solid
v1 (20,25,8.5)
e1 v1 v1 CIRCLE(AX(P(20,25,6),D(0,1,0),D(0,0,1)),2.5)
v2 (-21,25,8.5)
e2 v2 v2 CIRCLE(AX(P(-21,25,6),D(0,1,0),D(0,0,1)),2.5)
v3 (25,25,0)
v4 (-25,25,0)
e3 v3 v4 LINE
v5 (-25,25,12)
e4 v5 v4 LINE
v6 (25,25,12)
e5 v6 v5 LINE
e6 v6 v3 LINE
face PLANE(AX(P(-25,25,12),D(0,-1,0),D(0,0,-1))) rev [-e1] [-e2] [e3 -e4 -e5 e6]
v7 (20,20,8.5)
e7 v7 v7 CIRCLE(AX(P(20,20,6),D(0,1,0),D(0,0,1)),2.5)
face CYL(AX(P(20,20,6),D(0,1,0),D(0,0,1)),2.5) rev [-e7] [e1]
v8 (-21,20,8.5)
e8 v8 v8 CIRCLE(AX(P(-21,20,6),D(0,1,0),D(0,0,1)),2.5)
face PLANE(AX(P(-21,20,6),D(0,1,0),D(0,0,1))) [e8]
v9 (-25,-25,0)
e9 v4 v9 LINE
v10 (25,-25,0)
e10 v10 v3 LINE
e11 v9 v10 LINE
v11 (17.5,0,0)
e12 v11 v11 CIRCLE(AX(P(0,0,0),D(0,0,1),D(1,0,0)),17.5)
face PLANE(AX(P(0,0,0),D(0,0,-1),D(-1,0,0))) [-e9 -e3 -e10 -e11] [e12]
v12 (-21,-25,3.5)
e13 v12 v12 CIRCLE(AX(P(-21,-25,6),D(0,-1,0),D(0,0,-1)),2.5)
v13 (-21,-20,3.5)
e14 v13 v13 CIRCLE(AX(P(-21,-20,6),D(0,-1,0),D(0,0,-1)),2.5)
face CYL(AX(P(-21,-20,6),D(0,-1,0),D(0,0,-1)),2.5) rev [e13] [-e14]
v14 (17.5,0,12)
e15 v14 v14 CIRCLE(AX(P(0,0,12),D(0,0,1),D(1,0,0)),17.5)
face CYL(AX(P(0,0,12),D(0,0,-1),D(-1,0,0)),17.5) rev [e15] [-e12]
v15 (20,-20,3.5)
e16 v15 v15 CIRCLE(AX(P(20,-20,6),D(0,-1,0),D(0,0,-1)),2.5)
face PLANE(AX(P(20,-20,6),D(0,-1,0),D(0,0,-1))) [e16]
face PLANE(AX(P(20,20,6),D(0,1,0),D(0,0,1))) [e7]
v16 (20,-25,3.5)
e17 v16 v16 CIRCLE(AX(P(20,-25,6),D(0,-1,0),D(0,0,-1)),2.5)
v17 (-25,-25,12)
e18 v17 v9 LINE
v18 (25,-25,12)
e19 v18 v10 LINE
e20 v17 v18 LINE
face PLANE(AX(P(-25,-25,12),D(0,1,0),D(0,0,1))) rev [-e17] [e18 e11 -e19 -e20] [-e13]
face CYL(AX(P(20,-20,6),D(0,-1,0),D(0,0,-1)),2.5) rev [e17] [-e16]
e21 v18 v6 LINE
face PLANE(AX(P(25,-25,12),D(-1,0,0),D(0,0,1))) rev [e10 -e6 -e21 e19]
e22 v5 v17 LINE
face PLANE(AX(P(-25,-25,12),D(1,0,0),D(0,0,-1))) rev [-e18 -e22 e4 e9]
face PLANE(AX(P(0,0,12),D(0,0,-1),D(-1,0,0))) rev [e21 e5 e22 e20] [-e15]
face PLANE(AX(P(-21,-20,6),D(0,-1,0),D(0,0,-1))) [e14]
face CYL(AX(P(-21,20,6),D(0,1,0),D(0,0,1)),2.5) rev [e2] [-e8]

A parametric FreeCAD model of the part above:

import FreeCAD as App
import Part
import Sketcher
from FreeCAD import Vector
Q = App.Units.Quantity


def add_polygon(sketch, points):
    """Adds a closed chain of lines whose ends are joined by coincident constraints."""
    first, n = sketch.GeometryCount, len(points)
    for a, b in zip(points, points[1:] + points[:1]):
        sketch.addGeometry(Part.LineSegment(App.Vector(*a, 0), App.Vector(*b, 0)), False)
    for i in range(n):
        sketch.addConstraint(Sketcher.Constraint("Coincident", first + i, 2, first + (i + 1) % n, 1))

doc = App.newDocument("Part")
body = doc.addObject("PartDesign::Body", "Body")

sketch1 = body.newObject("Sketcher::SketchObject", "Sketch")
sketch1.AttachmentSupport = (doc.getObject("XY_Plane"), [""])
sketch1.MapMode = "FlatFace"
add_polygon(sketch1, [(-25, 25), (-25, -25), (25, -25), (25, 25)])
sketch1.addGeometry(Part.Circle(Vector(0, 0, 0), Vector(0, 0, 1), 18), False)
sketch1.addConstraint(Sketcher.Constraint("Vertical", 0))
sketch1.addConstraint(Sketcher.Constraint("Horizontal", 1))
sketch1.addConstraint(Sketcher.Constraint("Vertical", 2))
sketch1.addConstraint(Sketcher.Constraint("Horizontal", 3))
sketch1.addConstraint(Sketcher.Constraint("Coincident", 4, 3, -1, 1))
sketch1.addConstraint(Sketcher.Constraint("Symmetric", 0, 2, 2, 2, -1, 1))
sketch1.addConstraint(Sketcher.Constraint("Equal", 3, 0))
sketch1.addConstraint(Sketcher.Constraint("Diameter", 4, Q("35 mm")))
sketch1.addConstraint(Sketcher.Constraint("DistanceX", 1, 1, 1, 2, Q("50 mm")))
pad1 = body.newObject("PartDesign::Pad", "Pad")
pad1.Profile = sketch1
pad1.Length = 12

sketch2 = body.newObject("Sketcher::SketchObject", "Sketch001")
sketch2.AttachmentSupport = (doc.getObject("XZ_Plane"), [""])
sketch2.MapMode = "FlatFace"
sketch2.AttachmentOffset = App.Placement(Vector(0, 0, 25), App.Rotation())
sketch2.addGeometry(Part.Circle(Vector(-21, 6, 0), Vector(0, 0, 1), 2.5), False)
sketch2.addGeometry(Part.Circle(Vector(20, 6, 0), Vector(0, 0, 1), 2.5), False)
sketch2.addConstraint(Sketcher.Constraint("Equal", 0, 1))
sketch2.addConstraint(Sketcher.Constraint("Horizontal", 0, 3, 1, 3))
sketch2.addConstraint(Sketcher.Constraint("Diameter", 0, Q("5 mm")))
sketch2.addConstraint(Sketcher.Constraint("DistanceX", 0, 3, -1, 1, Q("21 mm")))
sketch2.addConstraint(Sketcher.Constraint("DistanceY", -1, 1, 0, 3, Q("6 mm")))
sketch2.addConstraint(Sketcher.Constraint("DistanceX", -1, 1, 1, 3, Q("20 mm")))
pocket1 = body.newObject("PartDesign::Pocket", "Pocket")
pocket1.Profile = sketch2
pocket1.Length = 5

sketch3 = body.newObject("Sketcher::SketchObject", "Sketch002")
sketch3.AttachmentSupport = (doc.getObject("XZ_Plane"), [""])
sketch3.MapMode = "FlatFace"
sketch3.AttachmentOffset = App.Placement(Vector(0, 0, -25), App.Rotation())
sketch3.addGeometry(Part.Circle(Vector(20, 6, 0), Vector(0, 0, 1), 2.5), False)
sketch3.addGeometry(Part.Circle(Vector(-21, 6, 0), Vector(0, 0, 1), 2.5), False)
sketch3.addConstraint(Sketcher.Constraint("Equal", 0, 1))
sketch3.addConstraint(Sketcher.Constraint("Horizontal", 0, 3, 1, 3))
sketch3.addConstraint(Sketcher.Constraint("Diameter", 0, Q("5 mm")))
sketch3.addConstraint(Sketcher.Constraint("DistanceX", -1, 1, 0, 3, Q("20 mm")))
sketch3.addConstraint(Sketcher.Constraint("DistanceY", -1, 1, 0, 3, Q("6 mm")))
sketch3.addConstraint(Sketcher.Constraint("DistanceX", 1, 3, -1, 1, Q("21 mm")))
pocket2 = body.newObject("PartDesign::Pocket", "Pocket001")
pocket2.Profile = sketch3
pocket2.Length = 5
pocket2.Reversed = True

doc.recompute()
